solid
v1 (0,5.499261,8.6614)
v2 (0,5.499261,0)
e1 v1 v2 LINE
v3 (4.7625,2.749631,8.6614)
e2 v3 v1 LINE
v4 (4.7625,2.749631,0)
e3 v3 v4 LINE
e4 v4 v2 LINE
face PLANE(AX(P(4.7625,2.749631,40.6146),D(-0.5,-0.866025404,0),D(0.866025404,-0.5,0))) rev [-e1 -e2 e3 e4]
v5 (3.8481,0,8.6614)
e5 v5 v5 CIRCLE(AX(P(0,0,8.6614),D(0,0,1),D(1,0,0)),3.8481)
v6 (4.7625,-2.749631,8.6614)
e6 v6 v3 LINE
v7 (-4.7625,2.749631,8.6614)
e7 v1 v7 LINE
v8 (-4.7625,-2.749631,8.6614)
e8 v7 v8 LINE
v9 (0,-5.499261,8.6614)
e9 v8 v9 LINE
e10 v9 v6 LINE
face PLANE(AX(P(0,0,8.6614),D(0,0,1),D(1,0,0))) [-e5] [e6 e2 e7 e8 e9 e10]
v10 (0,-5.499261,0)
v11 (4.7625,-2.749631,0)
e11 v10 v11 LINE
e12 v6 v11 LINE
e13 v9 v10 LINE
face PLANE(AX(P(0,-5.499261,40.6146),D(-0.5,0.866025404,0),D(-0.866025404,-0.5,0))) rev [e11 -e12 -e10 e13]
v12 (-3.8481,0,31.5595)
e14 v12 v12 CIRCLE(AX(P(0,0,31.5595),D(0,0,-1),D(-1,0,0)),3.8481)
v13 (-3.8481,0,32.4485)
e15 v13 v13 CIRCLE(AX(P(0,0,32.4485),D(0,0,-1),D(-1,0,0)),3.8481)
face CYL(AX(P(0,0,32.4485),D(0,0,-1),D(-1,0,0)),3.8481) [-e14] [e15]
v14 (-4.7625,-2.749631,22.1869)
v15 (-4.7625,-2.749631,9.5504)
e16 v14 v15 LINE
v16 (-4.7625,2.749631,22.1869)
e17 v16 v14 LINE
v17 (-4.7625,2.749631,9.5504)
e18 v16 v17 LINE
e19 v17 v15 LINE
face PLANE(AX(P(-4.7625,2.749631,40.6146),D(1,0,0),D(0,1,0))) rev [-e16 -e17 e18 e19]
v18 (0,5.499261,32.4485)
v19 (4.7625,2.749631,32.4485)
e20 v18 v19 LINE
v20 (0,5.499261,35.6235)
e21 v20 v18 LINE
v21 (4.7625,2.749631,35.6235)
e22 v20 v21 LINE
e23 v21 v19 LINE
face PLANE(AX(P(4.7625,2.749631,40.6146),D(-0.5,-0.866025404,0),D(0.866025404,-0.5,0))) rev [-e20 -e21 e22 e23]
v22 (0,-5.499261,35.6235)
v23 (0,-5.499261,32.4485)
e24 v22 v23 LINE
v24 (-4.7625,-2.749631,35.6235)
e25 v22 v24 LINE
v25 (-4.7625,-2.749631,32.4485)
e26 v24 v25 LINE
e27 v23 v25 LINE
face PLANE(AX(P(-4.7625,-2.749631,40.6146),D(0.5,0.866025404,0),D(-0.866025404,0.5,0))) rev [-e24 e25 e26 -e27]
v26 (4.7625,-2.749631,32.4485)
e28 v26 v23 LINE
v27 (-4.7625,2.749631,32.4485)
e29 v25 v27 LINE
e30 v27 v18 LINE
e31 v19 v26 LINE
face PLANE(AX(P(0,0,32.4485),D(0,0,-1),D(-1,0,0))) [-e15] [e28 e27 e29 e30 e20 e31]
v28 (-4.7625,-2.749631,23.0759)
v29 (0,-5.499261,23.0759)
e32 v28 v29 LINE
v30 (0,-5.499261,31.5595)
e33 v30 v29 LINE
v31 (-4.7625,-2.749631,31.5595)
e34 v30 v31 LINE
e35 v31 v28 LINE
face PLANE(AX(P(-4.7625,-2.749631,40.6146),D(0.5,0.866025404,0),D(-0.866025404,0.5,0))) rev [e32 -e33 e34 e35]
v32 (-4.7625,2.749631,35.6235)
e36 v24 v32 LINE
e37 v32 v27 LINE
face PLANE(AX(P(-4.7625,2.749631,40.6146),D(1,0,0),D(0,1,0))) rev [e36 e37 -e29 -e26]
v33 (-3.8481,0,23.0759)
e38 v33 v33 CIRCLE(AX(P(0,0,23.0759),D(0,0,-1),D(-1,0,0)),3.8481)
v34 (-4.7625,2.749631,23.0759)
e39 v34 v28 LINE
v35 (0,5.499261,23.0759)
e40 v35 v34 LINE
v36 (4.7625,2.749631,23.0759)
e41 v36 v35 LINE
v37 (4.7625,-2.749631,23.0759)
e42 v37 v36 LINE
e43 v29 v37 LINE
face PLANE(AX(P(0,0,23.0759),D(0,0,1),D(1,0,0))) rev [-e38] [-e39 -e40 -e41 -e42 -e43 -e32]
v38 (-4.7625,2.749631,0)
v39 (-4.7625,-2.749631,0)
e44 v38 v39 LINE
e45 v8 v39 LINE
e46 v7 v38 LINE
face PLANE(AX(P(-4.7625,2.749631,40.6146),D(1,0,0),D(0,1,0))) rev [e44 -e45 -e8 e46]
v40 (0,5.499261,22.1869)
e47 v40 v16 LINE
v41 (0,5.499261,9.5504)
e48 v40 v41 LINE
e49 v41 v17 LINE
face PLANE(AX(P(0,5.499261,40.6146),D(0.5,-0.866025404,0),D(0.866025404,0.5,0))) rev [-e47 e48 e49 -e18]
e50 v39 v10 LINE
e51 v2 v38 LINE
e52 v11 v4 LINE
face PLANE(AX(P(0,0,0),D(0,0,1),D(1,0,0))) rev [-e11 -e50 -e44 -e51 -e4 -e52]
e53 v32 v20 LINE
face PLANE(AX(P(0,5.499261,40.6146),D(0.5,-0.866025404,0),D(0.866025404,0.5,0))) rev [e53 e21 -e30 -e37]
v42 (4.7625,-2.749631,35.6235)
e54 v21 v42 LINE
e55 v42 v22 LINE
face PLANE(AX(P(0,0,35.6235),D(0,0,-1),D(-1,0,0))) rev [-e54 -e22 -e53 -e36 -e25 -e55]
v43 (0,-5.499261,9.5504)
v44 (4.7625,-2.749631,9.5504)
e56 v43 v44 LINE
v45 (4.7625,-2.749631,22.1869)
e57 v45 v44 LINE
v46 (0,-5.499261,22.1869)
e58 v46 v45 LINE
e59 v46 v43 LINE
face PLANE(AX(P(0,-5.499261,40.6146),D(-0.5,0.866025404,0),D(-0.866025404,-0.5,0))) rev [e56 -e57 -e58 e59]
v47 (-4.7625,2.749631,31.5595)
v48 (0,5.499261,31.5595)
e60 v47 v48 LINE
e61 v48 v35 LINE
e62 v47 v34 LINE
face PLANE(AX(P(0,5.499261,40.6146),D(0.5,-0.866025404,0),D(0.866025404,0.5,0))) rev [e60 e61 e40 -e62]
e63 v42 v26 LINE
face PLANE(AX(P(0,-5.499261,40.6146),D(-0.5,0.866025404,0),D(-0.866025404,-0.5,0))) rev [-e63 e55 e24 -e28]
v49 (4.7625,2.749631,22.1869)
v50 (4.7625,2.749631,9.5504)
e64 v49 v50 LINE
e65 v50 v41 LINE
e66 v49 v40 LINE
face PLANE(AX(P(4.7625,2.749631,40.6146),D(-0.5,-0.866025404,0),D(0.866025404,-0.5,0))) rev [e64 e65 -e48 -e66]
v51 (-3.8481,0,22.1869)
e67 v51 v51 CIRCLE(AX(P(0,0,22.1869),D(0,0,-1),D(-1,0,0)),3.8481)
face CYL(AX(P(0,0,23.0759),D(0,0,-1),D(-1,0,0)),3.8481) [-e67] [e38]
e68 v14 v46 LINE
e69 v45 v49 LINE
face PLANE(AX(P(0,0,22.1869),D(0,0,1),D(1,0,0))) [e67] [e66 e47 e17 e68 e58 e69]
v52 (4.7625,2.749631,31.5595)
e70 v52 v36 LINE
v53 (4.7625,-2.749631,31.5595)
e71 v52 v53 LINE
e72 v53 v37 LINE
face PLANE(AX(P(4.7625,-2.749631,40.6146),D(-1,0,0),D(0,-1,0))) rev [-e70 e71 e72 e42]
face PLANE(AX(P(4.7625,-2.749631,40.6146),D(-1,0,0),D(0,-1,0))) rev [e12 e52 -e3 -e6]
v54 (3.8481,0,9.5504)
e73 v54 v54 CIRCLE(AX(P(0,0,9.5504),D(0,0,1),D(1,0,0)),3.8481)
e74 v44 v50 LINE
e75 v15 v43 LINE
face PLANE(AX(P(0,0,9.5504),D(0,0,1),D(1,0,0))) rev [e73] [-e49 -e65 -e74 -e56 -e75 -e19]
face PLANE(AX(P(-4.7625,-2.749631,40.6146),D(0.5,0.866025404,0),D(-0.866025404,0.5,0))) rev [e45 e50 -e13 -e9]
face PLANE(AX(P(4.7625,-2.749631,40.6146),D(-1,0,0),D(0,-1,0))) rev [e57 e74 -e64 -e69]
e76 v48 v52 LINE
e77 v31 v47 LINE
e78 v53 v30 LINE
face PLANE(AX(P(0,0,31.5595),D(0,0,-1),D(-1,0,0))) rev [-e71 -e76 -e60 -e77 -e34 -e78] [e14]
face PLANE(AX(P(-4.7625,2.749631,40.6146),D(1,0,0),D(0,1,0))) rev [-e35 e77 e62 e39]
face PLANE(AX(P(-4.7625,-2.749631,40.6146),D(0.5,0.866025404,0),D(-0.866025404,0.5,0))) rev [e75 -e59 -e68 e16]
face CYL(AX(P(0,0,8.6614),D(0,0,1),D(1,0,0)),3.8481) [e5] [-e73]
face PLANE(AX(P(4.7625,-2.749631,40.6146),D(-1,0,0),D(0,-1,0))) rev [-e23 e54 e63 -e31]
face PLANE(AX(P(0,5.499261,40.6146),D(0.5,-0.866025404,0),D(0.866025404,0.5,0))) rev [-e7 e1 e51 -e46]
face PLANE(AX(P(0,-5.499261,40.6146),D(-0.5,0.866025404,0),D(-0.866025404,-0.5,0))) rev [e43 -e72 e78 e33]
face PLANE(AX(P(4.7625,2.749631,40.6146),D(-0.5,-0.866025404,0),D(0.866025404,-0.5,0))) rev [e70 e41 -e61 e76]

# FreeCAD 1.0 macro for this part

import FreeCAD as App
import Part
import Sketcher
Q = App.Units.Quantity

doc = App.newDocument("Part")
body = doc.addObject("PartDesign::Body", "Body")

# Sketch on XY plane
sketch1 = doc.addObject("Sketcher::SketchObject", "Sketch")
body.addObject(sketch1)
sketch1.AttachmentSupport = (doc.XY_Plane, [""])
sketch1.MapMode = "FlatFace"
sketch1.addGeometry(Part.LineSegment(App.Vector(0, 5, 0), App.Vector(-5, 3, 0)), False)
sketch1.addGeometry(Part.LineSegment(App.Vector(-5, 3, 0), App.Vector(-5, -3, 0)), False)
sketch1.addGeometry(Part.LineSegment(App.Vector(-5, -3, 0), App.Vector(0, -5, 0)), False)
sketch1.addGeometry(Part.LineSegment(App.Vector(0, -5, 0), App.Vector(5, -3, 0)), False)
sketch1.addGeometry(Part.LineSegment(App.Vector(5, -3, 0), App.Vector(5, 3, 0)), False)
sketch1.addGeometry(Part.LineSegment(App.Vector(5, 3, 0), App.Vector(0, 5, 0)), False)
sketch1.addConstraint(Sketcher.Constraint("Coincident", 0, 2, 1, 1))
sketch1.addConstraint(Sketcher.Constraint("Coincident", 1, 2, 2, 1))
sketch1.addConstraint(Sketcher.Constraint("Coincident", 2, 2, 3, 1))
sketch1.addConstraint(Sketcher.Constraint("Coincident", 3, 2, 4, 1))
sketch1.addConstraint(Sketcher.Constraint("Coincident", 4, 2, 5, 1))
sketch1.addConstraint(Sketcher.Constraint("Coincident", 5, 2, 0, 1))
sketch1.addConstraint(Sketcher.Constraint("Vertical", 1))
sketch1.addConstraint(Sketcher.Constraint("Vertical", 4))
sketch1.addConstraint(Sketcher.Constraint("Symmetric", 0, 2, 3, 2, -1, 1))
sketch1.addConstraint(Sketcher.Constraint("Symmetric", 2, 2, 5, 2, -1, 1))
sketch1.addConstraint(Sketcher.Constraint("PointOnObject", 2, 2, -2))
sketch1.addConstraint(Sketcher.Constraint("Parallel", 2, 5))
sketch1.addConstraint(Sketcher.Constraint("Horizontal", 1, 2, 3, 2))
sketch1.addConstraint(Sketcher.Constraint("Angle", 0, Q("-150 deg")))
sketch1.addConstraint(Sketcher.Constraint("DistanceX", 0, 2, -1, 1, Q("0.1875 in")))
sketch1.addConstraint(Sketcher.Constraint("DistanceY", 1, 2, 1, 1, 5.499261))
pad1 = doc.addObject("PartDesign::Pad", "Pad")
body.addObject(pad1)
pad1.Profile = sketch1
pad1.Length = Q("1.599 in")

# Sketch on XY plane
sketch2 = doc.addObject("Sketcher::SketchObject", "Sketch001")
body.addObject(sketch2)
sketch2.AttachmentSupport = (doc.XY_Plane, [""])
sketch2.MapMode = "FlatFace"
sketch2.AttachmentOffset = App.Placement(App.Vector(0, 0, 0.891 * 25.4), App.Rotation())
sketch2.addGeometry(Part.LineSegment(App.Vector(5.9, 6, 0), App.Vector(5.9, -6.2, 0)), False)
sketch2.addGeometry(Part.LineSegment(App.Vector(5.9, -6.2, 0), App.Vector(-5.2, -6.2, 0)), False)
sketch2.addGeometry(Part.LineSegment(App.Vector(-5.2, -6.2, 0), App.Vector(-5.2, 6, 0)), False)
sketch2.addGeometry(Part.LineSegment(App.Vector(-5.2, 6, 0), App.Vector(5.9, 6, 0)), False)
sketch2.addGeometry(Part.Circle(App.Vector(0, 0, 0), App.Vector(0, 0, 1), 3.8), False)
sketch2.addConstraint(Sketcher.Constraint("Coincident", 0, 2, 1, 1))
sketch2.addConstraint(Sketcher.Constraint("Coincident", 1, 2, 2, 1))
sketch2.addConstraint(Sketcher.Constraint("Coincident", 2, 2, 3, 1))
sketch2.addConstraint(Sketcher.Constraint("Coincident", 3, 2, 0, 1))
sketch2.addConstraint(Sketcher.Constraint("Vertical", 0))
sketch2.addConstraint(Sketcher.Constraint("Horizontal", 1))
sketch2.addConstraint(Sketcher.Constraint("Vertical", 2))
sketch2.addConstraint(Sketcher.Constraint("Horizontal", 3))
sketch2.addConstraint(Sketcher.Constraint("Coincident", 4, 3, -1, 1))
sketch2.addConstraint(Sketcher.Constraint("Diameter", 4, Q("0.303 in")))
sketch2.addConstraint(Sketcher.Constraint("DistanceX", 1, 2, -1, 1, 5.173499))
sketch2.addConstraint(Sketcher.Constraint("DistanceX", 1, 2, 1, 1, 11.103452))
sketch2.addConstraint(Sketcher.Constraint("DistanceY", 0, 2, 0, 1, 12.145052))
sketch2.addConstraint(Sketcher.Constraint("DistanceY", 0, 2, -1, 1, 6.166928))
pocket1 = doc.addObject("PartDesign::Pocket", "Pocket")
body.addObject(pocket1)
pocket1.Profile = sketch2
pocket1.Length = Q("0.035 in")
pocket1.Midplane = True

# Sketch on XY plane
sketch3 = doc.addObject("Sketcher::SketchObject", "Sketch002")
body.addObject(sketch3)
sketch3.AttachmentSupport = (doc.XY_Plane, [""])
sketch3.MapMode = "FlatFace"
sketch3.AttachmentOffset = App.Placement(App.Vector(0, 0, 1.26 * 25.4), App.Rotation())
sketch3.addGeometry(Part.LineSegment(App.Vector(6.1, 5.6, 0), App.Vector(6.1, -6.2, 0)), False)
sketch3.addGeometry(Part.LineSegment(App.Vector(6.1, -6.2, 0), App.Vector(-5.9, -6.2, 0)), False)
sketch3.addGeometry(Part.LineSegment(App.Vector(-5.9, -6.2, 0), App.Vector(-5.9, 5.6, 0)), False)
sketch3.addGeometry(Part.LineSegment(App.Vector(-5.9, 5.6, 0), App.Vector(6.1, 5.6, 0)), False)
sketch3.addGeometry(Part.Circle(App.Vector(0, 0, 0), App.Vector(0, 0, 1), 3.8), False)
sketch3.addConstraint(Sketcher.Constraint("Coincident", 0, 2, 1, 1))
sketch3.addConstraint(Sketcher.Constraint("Coincident", 1, 2, 2, 1))
sketch3.addConstraint(Sketcher.Constraint("Coincident", 2, 2, 3, 1))
sketch3.addConstraint(Sketcher.Constraint("Coincident", 3, 2, 0, 1))
sketch3.addConstraint(Sketcher.Constraint("Vertical", 0))
sketch3.addConstraint(Sketcher.Constraint("Horizontal", 1))
sketch3.addConstraint(Sketcher.Constraint("Vertical", 2))
sketch3.addConstraint(Sketcher.Constraint("Horizontal", 3))
sketch3.addConstraint(Sketcher.Constraint("Coincident", 4, 3, -1, 1))
sketch3.addConstraint(Sketcher.Constraint("Diameter", 4, Q("0.303 in")))
sketch3.addConstraint(Sketcher.Constraint("DistanceX", 1, 2, 1, 1, 12.002544))
sketch3.addConstraint(Sketcher.Constraint("DistanceY", 0, 2, 0, 1, 11.794167))
sketch3.addConstraint(Sketcher.Constraint("DistanceY", 0, 2, -1, 1, 6.150548))
sketch3.addConstraint(Sketcher.Constraint("DistanceX", 1, 2, -1, 1, 5.919651))
pocket2 = doc.addObject("PartDesign::Pocket", "Pocket001")
body.addObject(pocket2)
pocket2.Profile = sketch3
pocket2.Length = Q("0.035 in")
pocket2.Midplane = True

# Sketch on XY plane
sketch4 = doc.addObject("Sketcher::SketchObject", "Sketch003")
body.addObject(sketch4)
sketch4.AttachmentSupport = (doc.XY_Plane, [""])
sketch4.MapMode = "FlatFace"
sketch4.AttachmentOffset = App.Placement(App.Vector(0, 0, 0.3585 * 25.4), App.Rotation())
sketch4.addGeometry(Part.LineSegment(App.Vector(-5.6, 6.1, 0), App.Vector(-5.6, -5.8, 0)), False)
sketch4.addGeometry(Part.LineSegment(App.Vector(-5.6, -5.8, 0), App.Vector(5.8, -5.8, 0)), False)
sketch4.addGeometry(Part.LineSegment(App.Vector(5.8, -5.8, 0), App.Vector(5.8, 6.1, 0)), False)
sketch4.addGeometry(Part.LineSegment(App.Vector(5.8, 6.1, 0), App.Vector(-5.6, 6.1, 0)), False)
sketch4.addGeometry(Part.Circle(App.Vector(0, 0, 0), App.Vector(0, 0, 1), 3.8), False)
sketch4.addConstraint(Sketcher.Constraint("Coincident", 0, 2, 1, 1))
sketch4.addConstraint(Sketcher.Constraint("Coincident", 1, 2, 2, 1))
sketch4.addConstraint(Sketcher.Constraint("Coincident", 2, 2, 3, 1))
sketch4.addConstraint(Sketcher.Constraint("Coincident", 3, 2, 0, 1))
sketch4.addConstraint(Sketcher.Constraint("Vertical", 0))
sketch4.addConstraint(Sketcher.Constraint("Horizontal", 1))
sketch4.addConstraint(Sketcher.Constraint("Vertical", 2))
sketch4.addConstraint(Sketcher.Constraint("Horizontal", 3))
sketch4.addConstraint(Sketcher.Constraint("Coincident", 4, 3, -1, 1))
sketch4.addConstraint(Sketcher.Constraint("Diameter", 4, Q("0.303 in")))
sketch4.addConstraint(Sketcher.Constraint("DistanceX", 1, 1, 1, 2, 11.366817))
sketch4.addConstraint(Sketcher.Constraint("DistanceY", 0, 2, 0, 1, 11.947943))
sketch4.addConstraint(Sketcher.Constraint("DistanceX", 0, 2, -1, 1, 5.552872))
sketch4.addConstraint(Sketcher.Constraint("DistanceY", -1, 1, 2, 2, 6.132488))
pocket3 = doc.addObject("PartDesign::Pocket", "Pocket002")
body.addObject(pocket3)
pocket3.Profile = sketch4
pocket3.Length = Q("0.035 in")
pocket3.Midplane = True

# Sketch on XY plane
sketch5 = doc.addObject("Sketcher::SketchObject", "Sketch004")
body.addObject(sketch5)
sketch5.AttachmentSupport = (doc.XY_Plane, [""])
sketch5.MapMode = "FlatFace"
sketch5.AttachmentOffset = App.Placement(App.Vector(0, 0, 1.599 * 25.4), App.Rotation())
sketch5.addGeometry(Part.Circle(App.Vector(0, 0, 0), App.Vector(0, 0, 1), 6), False)
sketch5.addConstraint(Sketcher.Constraint("Coincident", 0, 3, -1, 1))
sketch5.addConstraint(Sketcher.Constraint("Diameter", 0, 11.490204))
pocket4 = doc.addObject("PartDesign::Pocket", "Pocket003")
body.addObject(pocket4)
pocket4.Profile = sketch5
pocket4.Length = Q("0.1965 in")

doc.recompute()
